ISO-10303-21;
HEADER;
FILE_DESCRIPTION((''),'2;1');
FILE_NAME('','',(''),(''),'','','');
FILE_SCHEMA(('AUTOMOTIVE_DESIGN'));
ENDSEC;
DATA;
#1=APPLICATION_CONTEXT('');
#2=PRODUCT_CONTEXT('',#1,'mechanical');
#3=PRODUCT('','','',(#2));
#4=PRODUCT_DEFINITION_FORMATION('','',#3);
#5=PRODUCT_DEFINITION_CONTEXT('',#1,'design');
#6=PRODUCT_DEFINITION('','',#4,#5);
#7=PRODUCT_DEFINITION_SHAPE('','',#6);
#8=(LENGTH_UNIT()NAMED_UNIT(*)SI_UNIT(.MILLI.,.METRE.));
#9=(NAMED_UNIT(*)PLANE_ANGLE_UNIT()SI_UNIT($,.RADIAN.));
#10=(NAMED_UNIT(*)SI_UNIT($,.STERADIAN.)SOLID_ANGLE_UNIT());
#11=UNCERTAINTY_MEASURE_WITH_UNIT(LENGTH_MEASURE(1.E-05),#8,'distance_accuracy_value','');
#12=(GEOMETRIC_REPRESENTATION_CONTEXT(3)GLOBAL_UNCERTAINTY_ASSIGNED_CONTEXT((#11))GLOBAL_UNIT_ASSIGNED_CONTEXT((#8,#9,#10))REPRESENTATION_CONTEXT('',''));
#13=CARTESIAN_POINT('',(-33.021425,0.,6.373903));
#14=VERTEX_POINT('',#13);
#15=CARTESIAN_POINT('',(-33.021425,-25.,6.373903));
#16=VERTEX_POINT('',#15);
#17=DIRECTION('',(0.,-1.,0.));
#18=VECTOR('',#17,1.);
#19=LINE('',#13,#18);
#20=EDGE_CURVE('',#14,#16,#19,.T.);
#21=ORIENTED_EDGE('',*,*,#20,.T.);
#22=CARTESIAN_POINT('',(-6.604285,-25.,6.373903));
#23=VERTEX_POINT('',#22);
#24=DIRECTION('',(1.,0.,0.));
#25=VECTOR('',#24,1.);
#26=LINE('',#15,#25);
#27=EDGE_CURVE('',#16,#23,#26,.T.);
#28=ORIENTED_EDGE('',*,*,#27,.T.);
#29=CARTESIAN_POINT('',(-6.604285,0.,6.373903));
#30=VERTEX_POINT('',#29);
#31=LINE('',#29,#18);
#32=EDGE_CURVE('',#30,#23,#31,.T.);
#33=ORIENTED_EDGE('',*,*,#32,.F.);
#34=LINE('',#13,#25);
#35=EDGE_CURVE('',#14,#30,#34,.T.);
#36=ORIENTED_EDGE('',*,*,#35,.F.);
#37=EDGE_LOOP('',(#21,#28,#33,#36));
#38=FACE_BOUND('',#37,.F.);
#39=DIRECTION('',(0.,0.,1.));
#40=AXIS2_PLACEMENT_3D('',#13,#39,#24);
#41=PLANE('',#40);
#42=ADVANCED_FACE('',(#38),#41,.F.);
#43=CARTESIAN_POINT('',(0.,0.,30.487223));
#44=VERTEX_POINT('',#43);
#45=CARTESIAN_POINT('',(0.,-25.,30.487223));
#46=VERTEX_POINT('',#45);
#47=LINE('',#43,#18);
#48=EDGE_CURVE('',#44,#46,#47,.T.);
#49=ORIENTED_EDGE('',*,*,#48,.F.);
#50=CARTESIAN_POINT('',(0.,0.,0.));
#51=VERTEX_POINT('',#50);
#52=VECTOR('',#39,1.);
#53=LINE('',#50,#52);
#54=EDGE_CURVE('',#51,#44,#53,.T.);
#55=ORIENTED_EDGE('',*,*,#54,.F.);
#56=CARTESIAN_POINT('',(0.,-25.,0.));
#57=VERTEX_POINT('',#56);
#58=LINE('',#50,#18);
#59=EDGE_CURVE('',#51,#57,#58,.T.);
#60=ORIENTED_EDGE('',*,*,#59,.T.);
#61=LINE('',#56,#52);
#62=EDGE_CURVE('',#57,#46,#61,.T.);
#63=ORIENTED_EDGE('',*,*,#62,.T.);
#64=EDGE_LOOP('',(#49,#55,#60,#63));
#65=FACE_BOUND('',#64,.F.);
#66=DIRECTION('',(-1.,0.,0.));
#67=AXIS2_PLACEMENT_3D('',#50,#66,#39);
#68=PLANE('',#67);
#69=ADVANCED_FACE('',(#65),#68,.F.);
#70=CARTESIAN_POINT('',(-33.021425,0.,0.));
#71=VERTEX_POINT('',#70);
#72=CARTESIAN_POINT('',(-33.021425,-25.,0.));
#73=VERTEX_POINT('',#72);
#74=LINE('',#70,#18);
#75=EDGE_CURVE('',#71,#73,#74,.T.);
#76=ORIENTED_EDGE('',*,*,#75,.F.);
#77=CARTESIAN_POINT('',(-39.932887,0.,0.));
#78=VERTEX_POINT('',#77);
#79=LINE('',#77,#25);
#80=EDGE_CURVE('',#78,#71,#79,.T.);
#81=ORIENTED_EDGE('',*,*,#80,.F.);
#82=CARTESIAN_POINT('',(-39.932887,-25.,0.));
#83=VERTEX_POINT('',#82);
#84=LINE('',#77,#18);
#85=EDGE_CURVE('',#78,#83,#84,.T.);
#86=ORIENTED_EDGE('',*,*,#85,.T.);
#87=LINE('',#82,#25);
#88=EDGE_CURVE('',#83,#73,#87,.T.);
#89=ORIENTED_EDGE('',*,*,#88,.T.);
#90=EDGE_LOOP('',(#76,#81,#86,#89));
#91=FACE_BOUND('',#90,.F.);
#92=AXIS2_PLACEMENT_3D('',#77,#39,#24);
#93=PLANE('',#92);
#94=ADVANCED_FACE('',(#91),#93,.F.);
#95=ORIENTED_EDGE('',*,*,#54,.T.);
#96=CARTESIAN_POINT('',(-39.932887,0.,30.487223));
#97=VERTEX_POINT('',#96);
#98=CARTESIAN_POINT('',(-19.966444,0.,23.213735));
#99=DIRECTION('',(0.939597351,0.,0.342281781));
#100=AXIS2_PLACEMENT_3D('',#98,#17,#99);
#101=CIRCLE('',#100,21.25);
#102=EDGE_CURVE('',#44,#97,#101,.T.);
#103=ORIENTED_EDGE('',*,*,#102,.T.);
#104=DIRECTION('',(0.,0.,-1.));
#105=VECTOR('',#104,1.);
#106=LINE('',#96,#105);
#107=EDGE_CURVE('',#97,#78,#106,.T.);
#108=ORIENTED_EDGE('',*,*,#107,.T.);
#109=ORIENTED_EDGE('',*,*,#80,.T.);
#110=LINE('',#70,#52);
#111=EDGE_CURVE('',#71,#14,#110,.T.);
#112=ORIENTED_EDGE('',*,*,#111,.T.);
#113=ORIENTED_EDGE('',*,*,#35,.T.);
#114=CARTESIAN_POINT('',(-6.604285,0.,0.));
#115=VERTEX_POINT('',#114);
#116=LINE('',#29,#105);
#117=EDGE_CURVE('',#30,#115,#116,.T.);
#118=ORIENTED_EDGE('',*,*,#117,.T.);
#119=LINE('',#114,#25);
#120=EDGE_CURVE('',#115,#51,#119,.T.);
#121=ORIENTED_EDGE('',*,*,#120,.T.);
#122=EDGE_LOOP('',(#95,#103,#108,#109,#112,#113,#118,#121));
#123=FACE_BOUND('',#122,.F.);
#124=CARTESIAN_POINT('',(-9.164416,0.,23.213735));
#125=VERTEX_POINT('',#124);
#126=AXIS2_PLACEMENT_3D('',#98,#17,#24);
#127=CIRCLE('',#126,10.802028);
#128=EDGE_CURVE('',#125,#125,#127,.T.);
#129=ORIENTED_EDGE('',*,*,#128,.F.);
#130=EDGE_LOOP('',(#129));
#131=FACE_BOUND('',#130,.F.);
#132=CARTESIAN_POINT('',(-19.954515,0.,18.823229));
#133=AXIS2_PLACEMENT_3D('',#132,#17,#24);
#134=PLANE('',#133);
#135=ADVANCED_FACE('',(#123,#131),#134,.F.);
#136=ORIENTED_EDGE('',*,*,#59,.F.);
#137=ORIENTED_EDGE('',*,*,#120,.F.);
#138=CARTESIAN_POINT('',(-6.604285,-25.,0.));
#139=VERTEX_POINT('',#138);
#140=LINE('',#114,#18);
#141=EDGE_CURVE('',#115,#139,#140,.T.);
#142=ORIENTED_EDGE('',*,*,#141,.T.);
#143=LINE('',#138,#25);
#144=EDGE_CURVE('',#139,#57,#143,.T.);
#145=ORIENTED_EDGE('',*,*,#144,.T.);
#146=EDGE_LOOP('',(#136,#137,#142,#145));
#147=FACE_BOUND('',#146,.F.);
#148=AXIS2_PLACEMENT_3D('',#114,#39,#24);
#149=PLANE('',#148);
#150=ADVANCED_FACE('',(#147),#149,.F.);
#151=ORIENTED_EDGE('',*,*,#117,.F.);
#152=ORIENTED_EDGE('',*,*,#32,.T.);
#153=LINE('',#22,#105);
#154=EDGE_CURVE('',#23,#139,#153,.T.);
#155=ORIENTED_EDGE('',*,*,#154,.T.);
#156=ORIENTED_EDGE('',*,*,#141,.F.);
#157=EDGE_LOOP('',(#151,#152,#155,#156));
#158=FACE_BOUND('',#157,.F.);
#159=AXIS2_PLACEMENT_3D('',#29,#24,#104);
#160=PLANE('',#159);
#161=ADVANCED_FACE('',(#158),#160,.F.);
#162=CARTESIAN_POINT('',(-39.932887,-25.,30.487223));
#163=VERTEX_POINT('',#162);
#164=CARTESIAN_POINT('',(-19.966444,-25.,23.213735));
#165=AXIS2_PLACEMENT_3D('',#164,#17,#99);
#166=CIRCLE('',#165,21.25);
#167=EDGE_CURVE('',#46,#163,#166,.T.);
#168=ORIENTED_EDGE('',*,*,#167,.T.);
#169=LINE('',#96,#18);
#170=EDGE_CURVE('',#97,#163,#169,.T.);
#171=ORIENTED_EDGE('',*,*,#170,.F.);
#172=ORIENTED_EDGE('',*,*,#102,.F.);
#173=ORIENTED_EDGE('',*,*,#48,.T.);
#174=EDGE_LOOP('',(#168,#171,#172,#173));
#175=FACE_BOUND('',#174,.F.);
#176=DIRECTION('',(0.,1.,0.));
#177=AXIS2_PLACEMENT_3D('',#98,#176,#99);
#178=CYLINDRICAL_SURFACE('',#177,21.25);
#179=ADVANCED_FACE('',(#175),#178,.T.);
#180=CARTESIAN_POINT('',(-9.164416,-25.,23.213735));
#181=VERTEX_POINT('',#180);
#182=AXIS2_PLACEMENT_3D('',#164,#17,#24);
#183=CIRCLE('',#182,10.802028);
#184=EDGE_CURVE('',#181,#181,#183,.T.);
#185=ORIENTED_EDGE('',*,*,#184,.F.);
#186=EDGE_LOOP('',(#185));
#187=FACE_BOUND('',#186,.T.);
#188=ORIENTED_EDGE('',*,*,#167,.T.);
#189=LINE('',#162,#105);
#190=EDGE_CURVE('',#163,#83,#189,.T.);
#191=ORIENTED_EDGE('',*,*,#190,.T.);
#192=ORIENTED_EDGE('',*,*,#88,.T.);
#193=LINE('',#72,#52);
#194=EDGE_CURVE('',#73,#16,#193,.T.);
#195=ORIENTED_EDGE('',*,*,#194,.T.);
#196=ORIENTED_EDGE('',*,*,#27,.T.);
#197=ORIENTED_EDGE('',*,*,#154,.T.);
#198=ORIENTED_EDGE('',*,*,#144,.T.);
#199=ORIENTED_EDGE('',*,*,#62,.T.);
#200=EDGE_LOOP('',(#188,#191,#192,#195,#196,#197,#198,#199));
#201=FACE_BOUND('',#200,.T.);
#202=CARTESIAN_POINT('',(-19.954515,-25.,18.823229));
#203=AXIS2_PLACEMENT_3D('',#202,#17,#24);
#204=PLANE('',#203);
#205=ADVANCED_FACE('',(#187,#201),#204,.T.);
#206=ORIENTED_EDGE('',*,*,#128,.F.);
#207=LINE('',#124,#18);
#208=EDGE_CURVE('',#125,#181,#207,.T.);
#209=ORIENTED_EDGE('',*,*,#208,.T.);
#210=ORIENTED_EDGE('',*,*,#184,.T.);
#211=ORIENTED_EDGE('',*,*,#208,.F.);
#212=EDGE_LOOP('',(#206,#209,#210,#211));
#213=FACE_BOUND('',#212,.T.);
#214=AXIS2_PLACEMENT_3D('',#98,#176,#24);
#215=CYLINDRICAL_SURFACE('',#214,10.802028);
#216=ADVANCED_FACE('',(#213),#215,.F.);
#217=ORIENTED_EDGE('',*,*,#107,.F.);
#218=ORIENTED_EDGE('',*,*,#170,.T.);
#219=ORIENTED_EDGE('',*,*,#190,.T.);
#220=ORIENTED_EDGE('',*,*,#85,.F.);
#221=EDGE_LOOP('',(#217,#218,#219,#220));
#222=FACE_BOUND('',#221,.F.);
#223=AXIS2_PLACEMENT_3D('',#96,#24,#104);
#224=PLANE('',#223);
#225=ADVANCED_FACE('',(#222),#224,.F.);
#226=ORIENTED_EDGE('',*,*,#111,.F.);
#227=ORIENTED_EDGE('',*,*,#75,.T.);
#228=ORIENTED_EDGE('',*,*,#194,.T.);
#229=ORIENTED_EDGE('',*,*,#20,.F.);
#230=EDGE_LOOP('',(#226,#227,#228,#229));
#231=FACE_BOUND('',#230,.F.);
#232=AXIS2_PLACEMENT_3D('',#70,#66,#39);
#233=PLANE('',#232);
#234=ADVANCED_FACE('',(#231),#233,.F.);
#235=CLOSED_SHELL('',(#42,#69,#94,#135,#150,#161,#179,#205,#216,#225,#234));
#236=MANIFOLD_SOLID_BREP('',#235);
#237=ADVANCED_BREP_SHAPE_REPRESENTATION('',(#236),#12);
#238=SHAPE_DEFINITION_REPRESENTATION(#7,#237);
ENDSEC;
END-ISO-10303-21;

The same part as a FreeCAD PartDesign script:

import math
import FreeCAD as App
import Part
import Sketcher

V = App.Vector
Q = App.Units.Quantity

doc = App.newDocument("Part")
body = doc.addObject("PartDesign::Body", "Body")

sketch1 = body.newObject("Sketcher::SketchObject", "Sketch")
sketch1.AttachmentSupport = (doc.getObject("XZ_Plane"), [""])
sketch1.MapMode = "FlatFace"
sketch1.addGeometry(Part.LineSegment(V(-6.604285, 0, 0), V(0, 0, 0)), False)
sketch1.addGeometry(Part.LineSegment(V(0, 0, 0), V(0, 30.487223, 0)), False)
sketch1.addGeometry(Part.ArcOfCircle(Part.Circle(V(-19.966444, 23.213735, 0), V(0, 0, 1), 21.25), math.radians(20.015954), math.radians(159.984046)), False)
sketch1.addGeometry(Part.LineSegment(V(-39.932887, 30.487223, 0), V(-39.932887, 0, 0)), False)
sketch1.addGeometry(Part.LineSegment(V(-39.932887, 0, 0), V(-33.021425, 0, 0)), False)
sketch1.addGeometry(Part.LineSegment(V(-33.021425, 0, 0), V(-33.021425, 6.373903, 0)), False)
sketch1.addGeometry(Part.LineSegment(V(-33.021425, 6.373903, 0), V(-6.604285, 6.373903, 0)), False)
sketch1.addGeometry(Part.LineSegment(V(-6.604285, 6.373903, 0), V(-6.604285, 0, 0)), False)
sketch1.addGeometry(Part.Circle(V(-19.966444, 23.213735, 0), V(0, 0, 1), 10.802028), False)
sketch1.addConstraint(Sketcher.Constraint("Coincident", 0, 2, 1, 1))
sketch1.addConstraint(Sketcher.Constraint("Coincident", 1, 2, 2, 1))
sketch1.addConstraint(Sketcher.Constraint("Coincident", 2, 2, 3, 1))
sketch1.addConstraint(Sketcher.Constraint("Coincident", 3, 2, 4, 1))
sketch1.addConstraint(Sketcher.Constraint("Coincident", 4, 2, 5, 1))
sketch1.addConstraint(Sketcher.Constraint("Coincident", 5, 2, 6, 1))
sketch1.addConstraint(Sketcher.Constraint("Coincident", 6, 2, 7, 1))
sketch1.addConstraint(Sketcher.Constraint("Coincident", 7, 2, 0, 1))
sketch1.addConstraint(Sketcher.Constraint("Horizontal", 0))
sketch1.addConstraint(Sketcher.Constraint("Vertical", 1))
sketch1.addConstraint(Sketcher.Constraint("Vertical", 3))
sketch1.addConstraint(Sketcher.Constraint("Horizontal", 4))
sketch1.addConstraint(Sketcher.Constraint("Vertical", 5))
sketch1.addConstraint(Sketcher.Constraint("Horizontal", 6))
sketch1.addConstraint(Sketcher.Constraint("Vertical", 7))
sketch1.addConstraint(Sketcher.Constraint("Coincident", 0, 2, -1, 1))
sketch1.addConstraint(Sketcher.Constraint("Coincident", 8, 3, 2, 3))
sketch1.addConstraint(Sketcher.Constraint("PointOnObject", 3, 2, -1))
sketch1.addConstraint(Sketcher.Constraint("Horizontal", 1, 2, 2, 2))
sketch1.addConstraint(Sketcher.Constraint("Radius", 2, Q("21.25 mm")))
sketch1.addConstraint(Sketcher.Constraint("Diameter", 8, Q("21.604056 mm")))
sketch1.addConstraint(Sketcher.Constraint("DistanceX", 6, 1, 6, 2, Q("26.41714 mm")))
sketch1.addConstraint(Sketcher.Constraint("DistanceX", 0, 1, 0, 2, Q("6.604285 mm")))
sketch1.addConstraint(Sketcher.Constraint("DistanceX", 4, 1, 4, 2, Q("6.911462 mm")))
sketch1.addConstraint(Sketcher.Constraint("DistanceY", 1, 1, 1, 2, Q("30.487223 mm")))
sketch1.addConstraint(Sketcher.Constraint("DistanceY", 5, 1, 5, 2, Q("6.373903 mm")))
pad1 = body.newObject("PartDesign::Pad", "Pad")
pad1.Profile = sketch1
pad1.Length = 25

doc.recompute()
